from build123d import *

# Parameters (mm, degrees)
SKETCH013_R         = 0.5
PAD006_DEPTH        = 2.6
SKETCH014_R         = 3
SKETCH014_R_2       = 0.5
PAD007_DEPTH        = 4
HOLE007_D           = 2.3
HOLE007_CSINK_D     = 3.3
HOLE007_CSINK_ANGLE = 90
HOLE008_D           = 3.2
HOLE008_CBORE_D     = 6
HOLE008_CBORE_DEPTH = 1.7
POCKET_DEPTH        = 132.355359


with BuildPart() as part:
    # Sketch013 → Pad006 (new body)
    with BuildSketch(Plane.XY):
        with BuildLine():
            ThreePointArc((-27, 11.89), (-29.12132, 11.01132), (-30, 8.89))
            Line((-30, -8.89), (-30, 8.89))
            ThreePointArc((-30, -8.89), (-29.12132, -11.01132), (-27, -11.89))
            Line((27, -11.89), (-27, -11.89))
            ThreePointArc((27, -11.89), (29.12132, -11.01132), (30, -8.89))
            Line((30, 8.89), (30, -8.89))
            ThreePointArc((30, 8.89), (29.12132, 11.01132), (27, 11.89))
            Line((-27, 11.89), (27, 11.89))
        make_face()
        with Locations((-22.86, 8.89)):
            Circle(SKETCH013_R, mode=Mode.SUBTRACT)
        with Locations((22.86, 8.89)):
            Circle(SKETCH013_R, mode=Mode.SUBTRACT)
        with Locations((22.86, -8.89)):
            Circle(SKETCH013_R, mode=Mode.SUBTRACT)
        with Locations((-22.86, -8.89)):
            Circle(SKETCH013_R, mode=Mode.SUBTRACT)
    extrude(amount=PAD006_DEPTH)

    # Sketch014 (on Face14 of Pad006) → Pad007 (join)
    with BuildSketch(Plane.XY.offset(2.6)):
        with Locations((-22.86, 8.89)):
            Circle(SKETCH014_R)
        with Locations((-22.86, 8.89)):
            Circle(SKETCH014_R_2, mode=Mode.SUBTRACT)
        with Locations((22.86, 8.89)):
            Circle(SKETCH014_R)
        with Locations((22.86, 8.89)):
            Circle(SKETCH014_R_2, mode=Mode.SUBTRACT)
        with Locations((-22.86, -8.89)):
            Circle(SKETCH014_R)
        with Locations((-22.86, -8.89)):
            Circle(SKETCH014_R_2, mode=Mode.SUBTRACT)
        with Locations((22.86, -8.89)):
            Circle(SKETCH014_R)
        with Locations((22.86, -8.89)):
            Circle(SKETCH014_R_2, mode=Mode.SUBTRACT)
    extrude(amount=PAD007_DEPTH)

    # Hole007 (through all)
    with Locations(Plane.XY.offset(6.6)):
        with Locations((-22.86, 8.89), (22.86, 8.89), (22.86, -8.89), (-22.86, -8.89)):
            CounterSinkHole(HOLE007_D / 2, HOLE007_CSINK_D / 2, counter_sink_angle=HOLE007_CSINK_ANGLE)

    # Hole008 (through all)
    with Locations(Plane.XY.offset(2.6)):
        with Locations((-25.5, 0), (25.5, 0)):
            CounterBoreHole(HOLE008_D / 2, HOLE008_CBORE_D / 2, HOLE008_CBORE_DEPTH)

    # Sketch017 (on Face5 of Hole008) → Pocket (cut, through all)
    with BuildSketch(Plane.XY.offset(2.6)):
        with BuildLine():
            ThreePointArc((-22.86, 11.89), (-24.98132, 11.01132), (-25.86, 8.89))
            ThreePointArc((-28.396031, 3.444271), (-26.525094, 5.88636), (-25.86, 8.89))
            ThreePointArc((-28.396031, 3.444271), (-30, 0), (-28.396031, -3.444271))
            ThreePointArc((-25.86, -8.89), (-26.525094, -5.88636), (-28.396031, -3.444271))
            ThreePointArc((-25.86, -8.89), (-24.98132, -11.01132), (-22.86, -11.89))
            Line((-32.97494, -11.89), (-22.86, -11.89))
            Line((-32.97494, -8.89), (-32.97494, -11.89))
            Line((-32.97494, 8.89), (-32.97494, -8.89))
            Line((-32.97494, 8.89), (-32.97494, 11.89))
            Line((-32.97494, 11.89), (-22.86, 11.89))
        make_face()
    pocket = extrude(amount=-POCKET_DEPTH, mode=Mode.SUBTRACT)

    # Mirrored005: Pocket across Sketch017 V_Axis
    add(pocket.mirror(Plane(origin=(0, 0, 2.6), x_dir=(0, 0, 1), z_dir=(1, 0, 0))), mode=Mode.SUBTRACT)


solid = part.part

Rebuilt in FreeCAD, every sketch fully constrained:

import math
import FreeCAD as App
import Part
import Sketcher
Q = App.Units.Quantity

doc = App.newDocument("Part")
params = doc.addObject("Spreadsheet::Sheet", "Params")
for row, (alias, value) in enumerate([
    ("sketch1_diameter", "1 mm"),
    ("sketch1_radius", "3.000001 mm"),
    ("sketch1_width", "54 mm"),
    ("sketch1_height", "17.78 mm"),
    ("pad1_length", "2.6 mm"),
    ("sketch2_diameter", "6 mm"),
    ("sketch2_diameter2", "1 mm"),
    ("pad2_length", "4 mm"),
    ("sketch3_diameter", "2.3 mm"),
    ("hole_diameter", "2.3 mm"),
    ("hole_csink_diameter", "3.3 mm"),
    ("sketch4_diameter", "3.2 mm"),
    ("hole2_diameter", "3.2 mm"),
    ("hole2_cbore_diameter", "6 mm"),
    ("hole2_cbore_depth", "1.7 mm"),
    ("sketch5_radius", "3.000001 mm"),
    ("sketch5_radius2", "4.499999 mm"),
    ("sketch5_height", "23.78 mm"),
], start=1):
    params.set(f"A{row}", alias)
    params.set(f"B{row}", "=" + value)
    params.setAlias(f"B{row}", alias)

body = doc.addObject("PartDesign::Body", "Body")

# Sketch on XY plane
sketch1 = body.newObject("Sketcher::SketchObject", "Sketch")
sketch1.AttachmentSupport = (doc.getObject("XY_Plane"), [""])
sketch1.MapMode = "FlatFace"
sketch1.addGeometry([
    Part.ArcOfCircle(Part.Circle(App.Vector(-26.999999, 8.889999, 0), App.Vector(0, 0, 1), 3.000001), math.radians(90.000022), math.radians(179.999978)),  # 0
    Part.LineSegment(App.Vector(-30, 8.89, 0), App.Vector(-30, -8.89, 0)),  # 1
    Part.ArcOfCircle(Part.Circle(App.Vector(-26.999999, -8.889999, 0), App.Vector(0, 0, 1), 3.000001), math.radians(-179.999978), math.radians(-90.000022)),  # 2
    Part.LineSegment(App.Vector(-27, -11.89, 0), App.Vector(27, -11.89, 0)),  # 3
    Part.ArcOfCircle(Part.Circle(App.Vector(26.999999, -8.889999, 0), App.Vector(0, 0, 1), 3.000001), math.radians(-89.999978), math.radians(-0.000022)),  # 4
    Part.LineSegment(App.Vector(30, -8.89, 0), App.Vector(30, 8.89, 0)),  # 5
    Part.ArcOfCircle(Part.Circle(App.Vector(26.999999, 8.889999, 0), App.Vector(0, 0, 1), 3.000001), math.radians(0.000022), math.radians(89.999978)),  # 6
    Part.LineSegment(App.Vector(27, 11.89, 0), App.Vector(-27, 11.89, 0)),  # 7
    Part.Circle(App.Vector(-22.86, -8.89, 0), App.Vector(0, 0, 1), 0.5),  # 8
    Part.Circle(App.Vector(22.86, -8.89, 0), App.Vector(0, 0, 1), 0.5),  # 9
    Part.Circle(App.Vector(-22.86, 8.89, 0), App.Vector(0, 0, 1), 0.5),  # 10
    Part.Circle(App.Vector(22.86, 8.89, 0), App.Vector(0, 0, 1), 0.5),  # 11
], False)
sketch1.addConstraint([
    Sketcher.Constraint("Tangent", 0, 2, 1, 1),
    Sketcher.Constraint("Tangent", 1, 2, 2, 1),
    Sketcher.Constraint("Tangent", 2, 2, 3, 1),
    Sketcher.Constraint("Tangent", 3, 2, 4, 1),
    Sketcher.Constraint("Tangent", 4, 2, 5, 1),
    Sketcher.Constraint("Tangent", 5, 2, 6, 1),
    Sketcher.Constraint("Tangent", 6, 2, 7, 1),
    Sketcher.Constraint("Tangent", 7, 2, 0, 1),
    Sketcher.Constraint("Vertical", 1),
    Sketcher.Constraint("Horizontal", 3),
    Sketcher.Constraint("Vertical", 5),
    Sketcher.Constraint("Horizontal", 7),
    Sketcher.Constraint("Equal", 0, 2),
    Sketcher.Constraint("Equal", 2, 4),
    Sketcher.Constraint("Equal", 4, 6),
    Sketcher.Constraint("Equal", 8, 9),
    Sketcher.Constraint("Equal", 9, 10),
    Sketcher.Constraint("Equal", 10, 11),
    Sketcher.Constraint("Symmetric", 0, 3, 4, 3, -1, 1),
    Sketcher.Constraint("Symmetric", 9, 3, 10, 3, -1, 1),
    Sketcher.Constraint("Symmetric", 8, 3, 11, 3, -1, 1),
    Sketcher.Constraint("Symmetric", 8, 3, 9, 3, -2),
    Sketcher.Constraint("Horizontal", 4, 3, 8, 3),
    Sketcher.Constraint("Diameter", 8, Q("1 mm")),
    Sketcher.Constraint("Radius", 0, Q("3.000001 mm")),
    Sketcher.Constraint("DistanceX", 3, 1, 3, 2, Q("54 mm")),
    Sketcher.Constraint("DistanceY", 1, 2, 1, 1, Q("17.78 mm")),
    Sketcher.Constraint("DistanceX", 8, 3, -1, 1, Q("22.86 mm")),
])
sketch1.setExpression("Constraints[23]", "Params.sketch1_diameter")
sketch1.setExpression("Constraints[24]", "Params.sketch1_radius")
sketch1.setExpression("Constraints[25]", "Params.sketch1_width")
sketch1.setExpression("Constraints[26]", "Params.sketch1_height")
pad1 = body.newObject("PartDesign::Pad", "Pad")
pad1.Profile = sketch1
pad1.setExpression("Length", "Params.pad1_length")

# Sketch on XY plane
sketch2 = body.newObject("Sketcher::SketchObject", "Sketch001")
sketch2.AttachmentSupport = (doc.getObject("XY_Plane"), [""])
sketch2.MapMode = "FlatFace"
sketch2.AttachmentOffset = App.Placement(App.Vector(0, 0, 2.6), App.Rotation())
sketch2.addGeometry([
    Part.Circle(App.Vector(-22.86, 8.89, 0), App.Vector(0, 0, 1), 3),  # 0
    Part.Circle(App.Vector(-22.86, 8.89, 0), App.Vector(0, 0, 1), 0.5),  # 1
    Part.Circle(App.Vector(22.86, 8.89, 0), App.Vector(0, 0, 1), 3),  # 2
    Part.Circle(App.Vector(22.86, 8.89, 0), App.Vector(0, 0, 1), 0.5),  # 3
    Part.Circle(App.Vector(-22.86, -8.89, 0), App.Vector(0, 0, 1), 3),  # 4
    Part.Circle(App.Vector(-22.86, -8.89, 0), App.Vector(0, 0, 1), 0.5),  # 5
    Part.Circle(App.Vector(22.86, -8.89, 0), App.Vector(0, 0, 1), 3),  # 6
    Part.Circle(App.Vector(22.86, -8.89, 0), App.Vector(0, 0, 1), 0.5),  # 7
], False)
sketch2.addConstraint([
    Sketcher.Constraint("Coincident", 1, 3, 0, 3),
    Sketcher.Constraint("Coincident", 3, 3, 2, 3),
    Sketcher.Constraint("Coincident", 5, 3, 4, 3),
    Sketcher.Constraint("Coincident", 7, 3, 6, 3),
    Sketcher.Constraint("Equal", 0, 2),
    Sketcher.Constraint("Equal", 1, 3),
    Sketcher.Constraint("Equal", 2, 4),
    Sketcher.Constraint("Equal", 3, 5),
    Sketcher.Constraint("Equal", 4, 6),
    Sketcher.Constraint("Equal", 5, 7),
    Sketcher.Constraint("Symmetric", 2, 3, 4, 3, -1, 1),
    Sketcher.Constraint("Symmetric", 0, 3, 6, 3, -1, 1),
    Sketcher.Constraint("Symmetric", 0, 3, 2, 3, -2),
    Sketcher.Constraint("Diameter", 0, Q("6 mm")),
    Sketcher.Constraint("Diameter", 1, Q("1 mm")),
    Sketcher.Constraint("DistanceX", 0, 3, -1, 1, Q("22.86 mm")),
    Sketcher.Constraint("DistanceY", -1, 1, 0, 3, Q("8.89 mm")),
])
sketch2.setExpression("Constraints[13]", "Params.sketch2_diameter")
sketch2.setExpression("Constraints[14]", "Params.sketch2_diameter2")
pad2 = body.newObject("PartDesign::Pad", "Pad001")
pad2.Profile = sketch2
pad2.setExpression("Length", "Params.pad2_length")

# Sketch on XY plane
sketch3 = body.newObject("Sketcher::SketchObject", "Sketch002")
sketch3.AttachmentSupport = (doc.getObject("XY_Plane"), [""])
sketch3.MapMode = "FlatFace"
sketch3.AttachmentOffset = App.Placement(App.Vector(0, 0, 6.6), App.Rotation())
sketch3.addGeometry([
    Part.Circle(App.Vector(-22.86, 8.89, 0), App.Vector(0, 0, 1), 1.15),
    Part.Circle(App.Vector(22.86, 8.89, 0), App.Vector(0, 0, 1), 1.15),
    Part.Circle(App.Vector(22.86, -8.89, 0), App.Vector(0, 0, 1), 1.15),
    Part.Circle(App.Vector(-22.86, -8.89, 0), App.Vector(0, 0, 1), 1.15),
], False)
sketch3.addConstraint([
    Sketcher.Constraint("Equal", 0, 1),
    Sketcher.Constraint("Equal", 1, 2),
    Sketcher.Constraint("Equal", 2, 3),
    Sketcher.Constraint("Symmetric", 0, 3, 2, 3, -1, 1),
    Sketcher.Constraint("Symmetric", 1, 3, 3, 3, -1, 1),
    Sketcher.Constraint("Symmetric", 0, 3, 1, 3, -2),
    Sketcher.Constraint("Diameter", 0, Q("2.3 mm")),
    Sketcher.Constraint("DistanceX", 0, 3, -1, 1, Q("22.86 mm")),
    Sketcher.Constraint("DistanceY", -1, 1, 0, 3, Q("8.89 mm")),
])
sketch3.setExpression("Constraints[6]", "Params.sketch3_diameter")
doc.recompute()
hole = body.newObject("PartDesign::Hole", "Hole")
hole.Profile = sketch3
hole.ThreadType = "None"
hole.setExpression("Diameter", "Params.hole_diameter")
hole.DepthType = "ThroughAll"
hole.HoleCutType = "Countersink"
hole.setExpression("HoleCutDiameter", "Params.hole_csink_diameter")
hole.HoleCutCountersinkAngle = 90

# Sketch on XY plane
sketch4 = body.newObject("Sketcher::SketchObject", "Sketch003")
sketch4.AttachmentSupport = (doc.getObject("XY_Plane"), [""])
sketch4.MapMode = "FlatFace"
sketch4.AttachmentOffset = App.Placement(App.Vector(0, 0, 2.6), App.Rotation())
sketch4.addGeometry([
    Part.Circle(App.Vector(-25.5, 0, 0), App.Vector(0, 0, 1), 1.6),
    Part.Circle(App.Vector(25.5, 0, 0), App.Vector(0, 0, 1), 1.6),
], False)
sketch4.addConstraint([
    Sketcher.Constraint("Equal", 0, 1),
    Sketcher.Constraint("Symmetric", 0, 3, 1, 3, -1, 1),
    Sketcher.Constraint("PointOnObject", 0, 3, -1),
    Sketcher.Constraint("Diameter", 0, Q("3.2 mm")),
    Sketcher.Constraint("DistanceX", 0, 3, 1, 3, Q("51 mm")),
])
sketch4.setExpression("Constraints[3]", "Params.sketch4_diameter")
doc.recompute()
hole2 = body.newObject("PartDesign::Hole", "Hole001")
hole2.Profile = sketch4
hole2.ThreadType = "None"
hole2.setExpression("Diameter", "Params.hole2_diameter")
hole2.DepthType = "ThroughAll"
hole2.HoleCutType = "Counterbore"
hole2.setExpression("HoleCutDiameter", "Params.hole2_cbore_diameter")
hole2.setExpression("HoleCutDepth", "Params.hole2_cbore_depth")

# Sketch on XY plane
sketch5 = body.newObject("Sketcher::SketchObject", "Sketch004")
sketch5.AttachmentSupport = (doc.getObject("XY_Plane"), [""])
sketch5.MapMode = "FlatFace"
sketch5.AttachmentOffset = App.Placement(App.Vector(0, 0, 2.6), App.Rotation())
sketch5.addGeometry([
    Part.ArcOfCircle(Part.Circle(App.Vector(-22.859999, 8.889999, 0), App.Vector(0, 0, 1), 3.000001), math.radians(90.000022), math.radians(179.999978)),  # 0
    Part.LineSegment(App.Vector(-22.86, 11.89, 0), App.Vector(-32.97494, 11.89, 0)),  # 1
    Part.LineSegment(App.Vector(-32.97494, 11.89, 0), App.Vector(-32.97494, -11.89, 0)),  # 2
    Part.LineSegment(App.Vector(-32.97494, -11.89, 0), App.Vector(-22.86, -11.89, 0)),  # 3
    Part.ArcOfCircle(Part.Circle(App.Vector(-22.859999, -8.889999, 0), App.Vector(0, 0, 1), 3.000001), math.radians(-179.999978), math.radians(-90.000022)),  # 4
    Part.ArcOfCircle(Part.Circle(App.Vector(-32.974943, -8.890002, 0), App.Vector(0, 0, 1), 7.114943), math.radians(0.000012), math.radians(49.942001)),  # 5
    Part.ArcOfCircle(Part.Circle(App.Vector(-25.500001, 0, 0), App.Vector(0, 0, 1), 4.499999), math.radians(130.057975), math.radians(229.942025)),  # 6
    Part.ArcOfCircle(Part.Circle(App.Vector(-32.974943, 8.890002, 0), App.Vector(0, 0, 1), 7.114943), math.radians(-49.942001), math.radians(-0.000012)),  # 7
], False)
sketch5.addConstraint([
    Sketcher.Constraint("Tangent", 0, 1, 1, 1),
    Sketcher.Constraint("Coincident", 1, 2, 2, 1),
    Sketcher.Constraint("Coincident", 2, 2, 3, 1),
    Sketcher.Constraint("Tangent", 3, 2, 4, 2),
    Sketcher.Constraint("Tangent", 4, 1, 5, 1),
    Sketcher.Constraint("Tangent", 5, 2, 6, 2),
    Sketcher.Constraint("Tangent", 6, 1, 7, 1),
    Sketcher.Constraint("Tangent", 7, 2, 0, 2),
    Sketcher.Constraint("Horizontal", 1),
    Sketcher.Constraint("Vertical", 2),
    Sketcher.Constraint("Horizontal", 3),
    Sketcher.Constraint("Equal", 0, 4),
    Sketcher.Constraint("Equal", 5, 7),
    Sketcher.Constraint("Symmetric", 0, 3, 4, 3, -1),
    Sketcher.Constraint("PointOnObject", 6, 3, -1),
    Sketcher.Constraint("Horizontal", 5, 3, 4, 1),
    Sketcher.Constraint("Radius", 0, Q("3.000001 mm")),
    Sketcher.Constraint("Radius", 6, Q("4.499999 mm")),
    Sketcher.Constraint("DistanceY", 2, 2, 2, 1, Q("23.78 mm")),
    Sketcher.Constraint("DistanceX", 6, 3, -1, 1, Q("25.500001 mm")),
    Sketcher.Constraint("DistanceX", 0, 3, -1, 1, Q("22.859999 mm")),
    Sketcher.Constraint("DistanceX", 1, 2, 1, 1, Q("10.11494 mm")),
])
sketch5.setExpression("Constraints[16]", "Params.sketch5_radius")
sketch5.setExpression("Constraints[17]", "Params.sketch5_radius2")
sketch5.setExpression("Constraints[18]", "Params.sketch5_height")
pocket1 = body.newObject("PartDesign::Pocket", "Pocket")
pocket1.Profile = sketch5
pocket1.Type = "ThroughAll"
doc.recompute()

mirrored = body.newObject("PartDesign::Mirrored", "Mirrored")
mirrored.Originals = [pocket1]
mirrored.MirrorPlane = (doc.getObject("YZ_Plane"), [""])
body.Tip = mirrored

doc.recompute()
